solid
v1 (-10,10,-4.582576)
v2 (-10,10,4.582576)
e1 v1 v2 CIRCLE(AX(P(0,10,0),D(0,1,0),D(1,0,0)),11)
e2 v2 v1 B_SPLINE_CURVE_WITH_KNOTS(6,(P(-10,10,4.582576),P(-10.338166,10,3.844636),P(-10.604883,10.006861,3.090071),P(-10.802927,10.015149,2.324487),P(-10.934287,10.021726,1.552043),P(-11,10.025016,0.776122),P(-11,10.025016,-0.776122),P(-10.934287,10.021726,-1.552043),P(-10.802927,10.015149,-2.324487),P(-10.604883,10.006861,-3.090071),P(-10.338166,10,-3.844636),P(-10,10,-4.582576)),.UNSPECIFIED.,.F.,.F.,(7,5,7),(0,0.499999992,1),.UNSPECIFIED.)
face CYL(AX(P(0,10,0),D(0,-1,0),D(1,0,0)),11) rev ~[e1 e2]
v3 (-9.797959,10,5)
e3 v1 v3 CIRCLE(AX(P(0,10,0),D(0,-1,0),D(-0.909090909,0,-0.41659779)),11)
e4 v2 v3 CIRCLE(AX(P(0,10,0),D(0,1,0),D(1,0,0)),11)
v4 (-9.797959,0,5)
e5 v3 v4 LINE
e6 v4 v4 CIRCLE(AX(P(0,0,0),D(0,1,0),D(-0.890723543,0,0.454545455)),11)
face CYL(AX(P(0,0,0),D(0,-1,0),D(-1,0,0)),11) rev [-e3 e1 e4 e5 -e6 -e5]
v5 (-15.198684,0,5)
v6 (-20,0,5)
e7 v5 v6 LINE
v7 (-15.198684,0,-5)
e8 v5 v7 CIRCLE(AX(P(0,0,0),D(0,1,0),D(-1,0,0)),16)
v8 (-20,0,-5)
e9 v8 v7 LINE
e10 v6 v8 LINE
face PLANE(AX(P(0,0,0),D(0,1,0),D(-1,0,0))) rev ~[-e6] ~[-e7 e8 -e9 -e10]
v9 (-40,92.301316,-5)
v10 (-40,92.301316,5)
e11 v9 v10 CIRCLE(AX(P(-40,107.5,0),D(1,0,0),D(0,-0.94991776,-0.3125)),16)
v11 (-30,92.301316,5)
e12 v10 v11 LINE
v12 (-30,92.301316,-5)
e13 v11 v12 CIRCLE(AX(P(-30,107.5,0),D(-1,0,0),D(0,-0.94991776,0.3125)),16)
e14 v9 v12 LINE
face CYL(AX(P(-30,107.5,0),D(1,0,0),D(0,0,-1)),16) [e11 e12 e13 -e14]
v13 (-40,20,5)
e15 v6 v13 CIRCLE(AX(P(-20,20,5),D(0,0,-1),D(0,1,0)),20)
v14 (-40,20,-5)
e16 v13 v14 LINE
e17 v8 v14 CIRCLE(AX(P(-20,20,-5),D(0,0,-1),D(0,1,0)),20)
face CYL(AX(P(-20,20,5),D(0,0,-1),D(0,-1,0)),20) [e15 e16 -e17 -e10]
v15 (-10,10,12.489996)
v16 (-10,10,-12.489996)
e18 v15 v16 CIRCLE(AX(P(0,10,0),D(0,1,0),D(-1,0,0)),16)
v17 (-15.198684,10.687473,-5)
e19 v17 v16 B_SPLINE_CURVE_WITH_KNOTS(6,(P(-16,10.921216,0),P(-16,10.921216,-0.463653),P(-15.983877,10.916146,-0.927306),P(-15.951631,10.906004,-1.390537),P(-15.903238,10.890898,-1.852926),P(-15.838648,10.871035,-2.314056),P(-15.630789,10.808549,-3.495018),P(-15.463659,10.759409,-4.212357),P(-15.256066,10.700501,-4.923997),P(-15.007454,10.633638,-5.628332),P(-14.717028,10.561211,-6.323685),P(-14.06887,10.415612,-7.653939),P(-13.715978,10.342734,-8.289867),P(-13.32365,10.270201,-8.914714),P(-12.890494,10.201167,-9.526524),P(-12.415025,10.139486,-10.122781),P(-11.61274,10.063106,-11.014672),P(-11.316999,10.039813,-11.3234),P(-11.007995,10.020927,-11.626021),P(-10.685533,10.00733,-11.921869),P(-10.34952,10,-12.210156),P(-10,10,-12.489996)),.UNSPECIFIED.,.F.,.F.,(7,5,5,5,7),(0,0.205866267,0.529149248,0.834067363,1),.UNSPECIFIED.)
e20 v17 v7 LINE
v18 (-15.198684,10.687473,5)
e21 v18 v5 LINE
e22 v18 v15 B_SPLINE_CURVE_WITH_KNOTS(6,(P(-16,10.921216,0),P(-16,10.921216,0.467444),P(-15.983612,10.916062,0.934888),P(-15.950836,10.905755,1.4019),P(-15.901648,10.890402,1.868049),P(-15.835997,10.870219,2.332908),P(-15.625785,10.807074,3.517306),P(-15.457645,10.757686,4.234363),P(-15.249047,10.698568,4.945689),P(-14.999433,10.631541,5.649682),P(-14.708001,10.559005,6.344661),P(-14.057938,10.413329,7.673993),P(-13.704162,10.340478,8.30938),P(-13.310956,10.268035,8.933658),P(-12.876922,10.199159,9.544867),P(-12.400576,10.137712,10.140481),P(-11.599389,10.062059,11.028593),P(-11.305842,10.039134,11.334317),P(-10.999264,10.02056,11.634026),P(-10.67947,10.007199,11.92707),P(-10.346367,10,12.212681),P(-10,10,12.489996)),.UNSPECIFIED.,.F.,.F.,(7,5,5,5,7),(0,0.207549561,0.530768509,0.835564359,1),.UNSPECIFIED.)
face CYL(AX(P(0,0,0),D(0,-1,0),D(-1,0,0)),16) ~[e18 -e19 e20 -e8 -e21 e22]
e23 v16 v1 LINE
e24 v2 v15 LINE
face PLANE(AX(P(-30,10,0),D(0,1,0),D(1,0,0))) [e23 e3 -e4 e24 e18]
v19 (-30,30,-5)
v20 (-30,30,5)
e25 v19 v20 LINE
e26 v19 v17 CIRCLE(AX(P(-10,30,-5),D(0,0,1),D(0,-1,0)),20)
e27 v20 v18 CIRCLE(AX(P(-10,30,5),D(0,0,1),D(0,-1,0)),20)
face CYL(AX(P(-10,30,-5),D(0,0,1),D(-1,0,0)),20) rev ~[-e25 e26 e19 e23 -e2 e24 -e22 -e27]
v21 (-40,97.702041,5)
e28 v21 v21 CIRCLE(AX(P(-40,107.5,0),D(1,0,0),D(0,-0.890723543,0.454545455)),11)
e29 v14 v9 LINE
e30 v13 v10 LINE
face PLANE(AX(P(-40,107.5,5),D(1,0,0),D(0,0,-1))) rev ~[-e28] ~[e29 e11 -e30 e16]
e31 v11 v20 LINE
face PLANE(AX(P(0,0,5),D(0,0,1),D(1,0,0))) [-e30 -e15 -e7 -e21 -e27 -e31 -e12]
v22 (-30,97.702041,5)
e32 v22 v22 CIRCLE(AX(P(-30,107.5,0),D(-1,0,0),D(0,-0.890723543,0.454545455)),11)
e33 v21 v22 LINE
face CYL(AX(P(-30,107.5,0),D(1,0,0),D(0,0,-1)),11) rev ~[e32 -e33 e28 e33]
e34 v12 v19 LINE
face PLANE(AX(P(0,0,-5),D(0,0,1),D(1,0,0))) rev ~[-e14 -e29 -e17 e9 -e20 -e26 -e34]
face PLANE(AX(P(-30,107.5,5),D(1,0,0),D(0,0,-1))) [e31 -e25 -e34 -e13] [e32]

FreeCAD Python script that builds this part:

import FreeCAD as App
import Part
import Sketcher
Q = App.Units.Quantity


def edges_at(feature, points):
    """Names of the edges that pass closest to the given points."""
    edges = feature.Shape.Edges
    near = lambda p: min(range(len(edges)), key=lambda i: edges[i].distToShape(Part.Vertex(*p))[0])
    return sorted({f"Edge{near(p) + 1}" for p in points})


def add_polygon(sketch, points):
    """Adds a closed chain of lines whose ends are joined by coincident constraints."""
    first, n = sketch.GeometryCount, len(points)
    for a, b in zip(points, points[1:] + points[:1]):
        sketch.addGeometry(Part.LineSegment(App.Vector(*a, 0), App.Vector(*b, 0)), False)
    for i in range(n):
        sketch.addConstraint(Sketcher.Constraint("Coincident", first + i, 2, first + (i + 1) % n, 1))

doc = App.newDocument("Part")
body = doc.addObject("PartDesign::Body", "Body")

sketch1 = body.newObject("Sketcher::SketchObject", "Sketch")
sketch1.AttachmentSupport = (doc.getObject("XZ_Plane"), [""])
sketch1.MapMode = "FlatFace"
sketch1.addGeometry([
    Part.Circle(App.Vector(0, 0, 0), App.Vector(0, 0, 1), 16),
    Part.Circle(App.Vector(0, 0, 0), App.Vector(0, 0, 1), 11),
], False)
sketch1.addConstraint([
    Sketcher.Constraint("Coincident", 0, 3, -1, 1),
    Sketcher.Constraint("Coincident", 1, 3, -1, 1),
    Sketcher.Constraint("Diameter", 1, Q("22 mm")),
    Sketcher.Constraint("Diameter", 0, Q("32 mm")),
])
pad1 = body.newObject("PartDesign::Pad", "Pad")
pad1.Profile = sketch1
pad1.Length = 10
pad1.Reversed = True

sketch2 = body.newObject("Sketcher::SketchObject", "Sketch001")
sketch2.AttachmentSupport = (doc.getObject("XY_Plane"), [""])
sketch2.MapMode = "FlatFace"
add_polygon(sketch2, [(0, 0), (0, 10), (-30, 10), (-30, 107.5), (-40, 107.5), (-40, 0)])
sketch2.addConstraint([
    Sketcher.Constraint("Vertical", 0),
    Sketcher.Constraint("Horizontal", 1),
    Sketcher.Constraint("Vertical", 2),
    Sketcher.Constraint("Horizontal", 3),
    Sketcher.Constraint("Vertical", 4),
    Sketcher.Constraint("Horizontal", 5),
    Sketcher.Constraint("Coincident", 5, 2, -1, 1),
    Sketcher.Constraint("Equal", 3, 0),
    Sketcher.Constraint("DistanceX", 1, 2, 1, 1, Q("30 mm")),
    Sketcher.Constraint("DistanceX", 3, 2, 3, 1, Q("10 mm")),
    Sketcher.Constraint("DistanceY", 4, 2, 4, 1, Q("107.5 mm")),
])
pad2 = body.newObject("PartDesign::Pad", "Pad001")
pad2.Profile = sketch2
pad2.Length = 10
pad2.Midplane = True
doc.recompute()

fillet = body.newObject("PartDesign::Fillet", "Fillet")
fillet.Base = (pad2, edges_at(pad2, [(-40, 0, 0), (-30, 10, 0)]))
fillet.Radius = 20

sketch3 = body.newObject("Sketcher::SketchObject", "Sketch002")
sketch3.AttachmentSupport = (doc.getObject("YZ_Plane"), [""])
sketch3.MapMode = "FlatFace"
sketch3.AttachmentOffset = App.Placement(App.Vector(0, 0, -30), App.Rotation())
sketch3.addGeometry([
    Part.Circle(App.Vector(107.5, 0, 0), App.Vector(0, 0, 1), 16),
    Part.Circle(App.Vector(107.5, 0, 0), App.Vector(0, 0, 1), 11),
], False)
sketch3.addConstraint([
    Sketcher.Constraint("Coincident", 1, 3, 0, 3),
    Sketcher.Constraint("PointOnObject", 0, 3, -1),
    Sketcher.Constraint("Diameter", 0, Q("32 mm")),
    Sketcher.Constraint("Diameter", 1, Q("22 mm")),
    Sketcher.Constraint("DistanceX", -1, 1, 0, 3, Q("107.5 mm")),
])
pad3 = body.newObject("PartDesign::Pad", "Pad002")
pad3.Profile = sketch3
pad3.Length = 10
pad3.Reversed = True

sketch4 = body.newObject("Sketcher::SketchObject", "Sketch003")
sketch4.AttachmentSupport = (doc.getObject("XZ_Plane"), [""])
sketch4.MapMode = "FlatFace"
sketch4.AttachmentOffset = App.Placement(App.Vector(0, 0, -10), App.Rotation())
sketch4.addGeometry(Part.Circle(App.Vector(0, 0, 0), App.Vector(0, 0, 1), 11), False)
sketch4.addConstraint([
    Sketcher.Constraint("Coincident", 0, 3, -1, 1),
    Sketcher.Constraint("Diameter", 0, Q("22 mm")),
])
pocket1 = body.newObject("PartDesign::Pocket", "Pocket")
pocket1.Profile = sketch4
pocket1.Length = 10
pocket1.Reversed = True

sketch5 = body.newObject("Sketcher::SketchObject", "Sketch004")
sketch5.AttachmentSupport = (doc.getObject("XZ_Plane"), [""])
sketch5.MapMode = "FlatFace"
sketch5.AttachmentOffset = App.Placement(App.Vector(0, 0, -10), App.Rotation())
sketch5.addGeometry(Part.Circle(App.Vector(0, 0, 0), App.Vector(0, 0, 1), 11), False)
sketch5.addConstraint([
    Sketcher.Constraint("Coincident", 0, 3, -1, 1),
    Sketcher.Constraint("Diameter", 0, Q("22 mm")),
])
pocket2 = body.newObject("PartDesign::Pocket", "Pocket001")
pocket2.Profile = sketch5
pocket2.Length = 10

sketch6 = body.newObject("Sketcher::SketchObject", "Sketch005")
sketch6.AttachmentSupport = (doc.getObject("YZ_Plane"), [""])
sketch6.MapMode = "FlatFace"
sketch6.AttachmentOffset = App.Placement(App.Vector(0, 0, -30), App.Rotation())
sketch6.addGeometry(Part.Circle(App.Vector(107.5, 0, 0), App.Vector(0, 0, 1), 11), False)
sketch6.addConstraint([
    Sketcher.Constraint("PointOnObject", 0, 3, -1),
    Sketcher.Constraint("Diameter", 0, Q("22 mm")),
    Sketcher.Constraint("DistanceX", -1, 1, 0, 3, Q("107.5 mm")),
])
pocket3 = body.newObject("PartDesign::Pocket", "Pocket002")
pocket3.Profile = sketch6
pocket3.Length = 10

doc.recompute()
